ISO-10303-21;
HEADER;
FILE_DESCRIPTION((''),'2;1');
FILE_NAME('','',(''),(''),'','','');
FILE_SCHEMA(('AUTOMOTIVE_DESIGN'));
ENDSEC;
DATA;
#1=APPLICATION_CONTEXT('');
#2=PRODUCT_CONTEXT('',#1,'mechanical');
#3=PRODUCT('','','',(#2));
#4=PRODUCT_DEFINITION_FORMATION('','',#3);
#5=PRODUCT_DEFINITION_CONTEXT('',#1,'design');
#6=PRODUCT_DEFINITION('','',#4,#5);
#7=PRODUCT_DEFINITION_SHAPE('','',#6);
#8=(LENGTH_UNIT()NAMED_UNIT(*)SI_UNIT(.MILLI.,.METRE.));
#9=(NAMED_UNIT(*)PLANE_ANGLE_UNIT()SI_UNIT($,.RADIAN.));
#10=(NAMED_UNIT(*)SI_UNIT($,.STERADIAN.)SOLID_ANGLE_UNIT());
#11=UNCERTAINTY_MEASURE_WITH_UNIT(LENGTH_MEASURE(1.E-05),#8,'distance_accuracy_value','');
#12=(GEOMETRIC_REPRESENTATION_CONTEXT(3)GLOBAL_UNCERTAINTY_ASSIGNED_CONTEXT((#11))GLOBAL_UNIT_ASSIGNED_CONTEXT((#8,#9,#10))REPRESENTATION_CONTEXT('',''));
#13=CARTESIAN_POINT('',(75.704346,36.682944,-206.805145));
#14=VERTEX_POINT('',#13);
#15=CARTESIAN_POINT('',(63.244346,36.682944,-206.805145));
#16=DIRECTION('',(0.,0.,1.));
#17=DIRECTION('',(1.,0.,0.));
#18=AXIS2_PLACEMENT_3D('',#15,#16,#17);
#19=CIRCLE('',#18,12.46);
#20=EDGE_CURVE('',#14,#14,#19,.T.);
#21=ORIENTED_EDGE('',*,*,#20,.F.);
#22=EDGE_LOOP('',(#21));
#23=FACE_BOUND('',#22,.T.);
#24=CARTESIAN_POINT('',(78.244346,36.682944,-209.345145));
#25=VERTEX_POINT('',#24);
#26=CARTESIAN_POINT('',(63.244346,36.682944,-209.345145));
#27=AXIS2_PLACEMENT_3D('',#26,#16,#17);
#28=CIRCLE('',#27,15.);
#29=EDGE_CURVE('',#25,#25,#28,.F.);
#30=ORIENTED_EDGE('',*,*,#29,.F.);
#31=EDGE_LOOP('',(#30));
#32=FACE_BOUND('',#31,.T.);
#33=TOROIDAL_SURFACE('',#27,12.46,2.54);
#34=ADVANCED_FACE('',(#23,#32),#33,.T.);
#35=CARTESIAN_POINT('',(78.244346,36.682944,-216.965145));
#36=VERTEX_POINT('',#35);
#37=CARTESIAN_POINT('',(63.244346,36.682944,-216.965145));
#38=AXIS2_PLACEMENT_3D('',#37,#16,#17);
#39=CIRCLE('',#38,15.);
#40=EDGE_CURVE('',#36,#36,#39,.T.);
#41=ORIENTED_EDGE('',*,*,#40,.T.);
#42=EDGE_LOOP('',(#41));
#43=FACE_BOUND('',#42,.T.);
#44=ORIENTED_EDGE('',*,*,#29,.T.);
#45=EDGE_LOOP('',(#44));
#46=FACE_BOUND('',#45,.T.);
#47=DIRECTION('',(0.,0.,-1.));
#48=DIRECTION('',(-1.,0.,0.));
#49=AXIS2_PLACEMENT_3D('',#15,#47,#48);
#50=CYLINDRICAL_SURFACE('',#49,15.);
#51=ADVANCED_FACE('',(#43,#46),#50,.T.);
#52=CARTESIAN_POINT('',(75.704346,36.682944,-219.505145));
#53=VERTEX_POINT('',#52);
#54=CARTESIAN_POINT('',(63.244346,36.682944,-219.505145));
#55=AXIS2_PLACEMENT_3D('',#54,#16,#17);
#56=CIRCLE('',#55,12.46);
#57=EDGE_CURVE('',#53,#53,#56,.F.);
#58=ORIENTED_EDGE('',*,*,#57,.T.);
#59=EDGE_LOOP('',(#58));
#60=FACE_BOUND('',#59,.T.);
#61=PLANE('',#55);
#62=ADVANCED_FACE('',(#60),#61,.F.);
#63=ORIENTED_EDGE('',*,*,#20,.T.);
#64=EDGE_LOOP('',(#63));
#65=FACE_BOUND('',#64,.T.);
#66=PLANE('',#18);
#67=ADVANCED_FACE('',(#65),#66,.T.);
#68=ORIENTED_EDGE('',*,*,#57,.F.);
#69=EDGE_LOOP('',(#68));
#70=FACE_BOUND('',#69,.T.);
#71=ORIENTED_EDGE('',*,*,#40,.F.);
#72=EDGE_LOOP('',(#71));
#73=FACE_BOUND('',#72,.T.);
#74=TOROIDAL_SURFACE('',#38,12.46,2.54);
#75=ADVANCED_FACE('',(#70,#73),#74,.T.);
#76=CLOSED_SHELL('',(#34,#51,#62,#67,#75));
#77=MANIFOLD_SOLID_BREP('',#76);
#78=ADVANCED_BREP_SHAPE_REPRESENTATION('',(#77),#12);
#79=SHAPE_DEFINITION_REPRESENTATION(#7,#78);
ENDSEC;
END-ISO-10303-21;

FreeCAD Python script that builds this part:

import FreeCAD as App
import Part
import Sketcher

V = App.Vector
Q = App.Units.Quantity


def edges_at(feature, points):
    """Names of the edges that pass closest to the given points."""
    edges = feature.Shape.Edges
    near = lambda p: min(range(len(edges)), key=lambda i: edges[i].distToShape(Part.Vertex(*p))[0])
    return sorted({f"Edge{near(p) + 1}" for p in points})

doc = App.newDocument("Part")
body = doc.addObject("PartDesign::Body", "Body")

sketch1 = body.newObject("Sketcher::SketchObject", "Sketch")
sketch1.AttachmentSupport = (doc.getObject("XY_Plane"), [""])
sketch1.MapMode = "FlatFace"
sketch1.AttachmentOffset = App.Placement(V(0, 0, -219.505145), App.Rotation())
sketch1.addGeometry(Part.Circle(V(63, 37, 0), V(0, 0, 1), 15), False)
sketch1.addConstraint(Sketcher.Constraint("Diameter", 0, 30.0))
sketch1.addConstraint(Sketcher.Constraint("DistanceX", -1, 1, 0, 3, 63.244346))
sketch1.addConstraint(Sketcher.Constraint("DistanceY", -1, 1, 0, 3, 36.682944))
pad1 = body.newObject("PartDesign::Pad", "Pad")
pad1.Profile = sketch1
pad1.Length = Q("0.5 in")
doc.recompute()

fillet = body.newObject("PartDesign::Fillet", "Fillet")
fillet.Base = (pad1, edges_at(pad1, [(48.244, 36.683, -219.505), (48.244, 36.683, -206.805)]))
fillet.Radius = Q("0.1 in")

doc.recompute()
